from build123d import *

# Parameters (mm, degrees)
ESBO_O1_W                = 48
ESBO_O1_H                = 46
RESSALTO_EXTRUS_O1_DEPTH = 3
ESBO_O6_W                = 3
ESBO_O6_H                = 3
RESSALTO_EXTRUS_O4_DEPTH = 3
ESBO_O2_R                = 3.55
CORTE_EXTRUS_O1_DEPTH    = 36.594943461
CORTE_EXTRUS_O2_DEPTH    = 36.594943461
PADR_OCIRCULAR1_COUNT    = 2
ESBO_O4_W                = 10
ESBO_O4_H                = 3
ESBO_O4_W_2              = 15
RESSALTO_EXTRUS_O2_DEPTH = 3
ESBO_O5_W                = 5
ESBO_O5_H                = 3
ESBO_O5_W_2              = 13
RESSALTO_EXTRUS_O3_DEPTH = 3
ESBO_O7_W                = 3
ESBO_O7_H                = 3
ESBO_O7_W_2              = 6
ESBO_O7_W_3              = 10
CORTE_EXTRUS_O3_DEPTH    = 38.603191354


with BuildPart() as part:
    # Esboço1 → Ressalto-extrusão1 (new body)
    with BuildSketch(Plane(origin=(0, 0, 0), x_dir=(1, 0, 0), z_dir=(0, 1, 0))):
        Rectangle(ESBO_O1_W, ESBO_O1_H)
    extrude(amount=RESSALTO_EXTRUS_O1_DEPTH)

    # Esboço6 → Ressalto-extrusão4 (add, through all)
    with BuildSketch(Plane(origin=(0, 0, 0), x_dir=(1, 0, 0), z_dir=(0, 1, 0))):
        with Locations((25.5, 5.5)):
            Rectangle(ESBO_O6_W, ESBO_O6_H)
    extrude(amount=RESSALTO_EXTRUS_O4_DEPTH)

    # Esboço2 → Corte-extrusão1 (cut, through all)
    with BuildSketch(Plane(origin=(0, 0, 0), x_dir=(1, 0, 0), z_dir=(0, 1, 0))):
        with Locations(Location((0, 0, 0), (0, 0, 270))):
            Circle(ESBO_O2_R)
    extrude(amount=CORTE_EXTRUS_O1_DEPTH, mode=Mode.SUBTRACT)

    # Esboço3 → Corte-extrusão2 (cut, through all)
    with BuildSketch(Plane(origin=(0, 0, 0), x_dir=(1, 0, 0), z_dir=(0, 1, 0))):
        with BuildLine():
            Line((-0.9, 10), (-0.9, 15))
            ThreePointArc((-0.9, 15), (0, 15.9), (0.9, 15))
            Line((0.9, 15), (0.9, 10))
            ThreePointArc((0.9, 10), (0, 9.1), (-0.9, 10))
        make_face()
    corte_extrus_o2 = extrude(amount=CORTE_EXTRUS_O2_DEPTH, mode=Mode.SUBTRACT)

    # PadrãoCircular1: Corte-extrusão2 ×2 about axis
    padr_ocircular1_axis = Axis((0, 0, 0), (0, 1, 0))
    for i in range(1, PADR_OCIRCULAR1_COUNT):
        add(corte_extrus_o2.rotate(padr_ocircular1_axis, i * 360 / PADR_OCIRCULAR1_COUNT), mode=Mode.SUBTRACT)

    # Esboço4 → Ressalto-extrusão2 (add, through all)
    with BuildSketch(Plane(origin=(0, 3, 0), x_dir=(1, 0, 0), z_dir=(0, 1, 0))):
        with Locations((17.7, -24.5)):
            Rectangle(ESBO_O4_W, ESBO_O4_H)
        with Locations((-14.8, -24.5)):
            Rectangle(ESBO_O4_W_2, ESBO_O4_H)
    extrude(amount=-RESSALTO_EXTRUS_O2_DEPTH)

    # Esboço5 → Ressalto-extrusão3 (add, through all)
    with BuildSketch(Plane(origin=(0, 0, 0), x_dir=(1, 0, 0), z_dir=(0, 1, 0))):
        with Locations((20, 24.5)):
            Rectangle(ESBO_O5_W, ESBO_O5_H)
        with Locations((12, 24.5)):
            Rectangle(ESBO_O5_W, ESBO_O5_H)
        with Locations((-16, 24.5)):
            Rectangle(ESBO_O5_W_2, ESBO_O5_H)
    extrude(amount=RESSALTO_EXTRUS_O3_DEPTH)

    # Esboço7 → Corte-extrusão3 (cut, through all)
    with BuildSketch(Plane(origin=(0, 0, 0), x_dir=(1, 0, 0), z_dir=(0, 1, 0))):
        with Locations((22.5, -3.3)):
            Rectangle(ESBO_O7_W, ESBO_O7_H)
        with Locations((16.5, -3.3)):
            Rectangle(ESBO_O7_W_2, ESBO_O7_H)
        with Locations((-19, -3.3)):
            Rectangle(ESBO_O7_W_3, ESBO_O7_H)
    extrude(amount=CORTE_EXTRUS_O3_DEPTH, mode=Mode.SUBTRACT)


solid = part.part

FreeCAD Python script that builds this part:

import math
import FreeCAD as App
import Part
import Sketcher

V = App.Vector


def add_polygon(sketch, points):
    """Adds a closed chain of lines whose ends are joined by coincident constraints."""
    first, n = sketch.GeometryCount, len(points)
    for a, b in zip(points, points[1:] + points[:1]):
        sketch.addGeometry(Part.LineSegment(App.Vector(*a, 0), App.Vector(*b, 0)), False)
    for i in range(n):
        sketch.addConstraint(Sketcher.Constraint("Coincident", first + i, 2, first + (i + 1) % n, 1))

doc = App.newDocument("Part")
body = doc.addObject("PartDesign::Body", "Body")

sketch1 = body.newObject("Sketcher::SketchObject", "Sketch")
sketch1.AttachmentSupport = (doc.getObject("XZ_Plane"), [""])
sketch1.MapMode = "FlatFace"
add_polygon(sketch1, [(-24, -23), (-24, 23), (24, 23), (24, -23)])
sketch1.addConstraint(Sketcher.Constraint("Vertical", 0))
sketch1.addConstraint(Sketcher.Constraint("Horizontal", 1))
sketch1.addConstraint(Sketcher.Constraint("Vertical", 2))
sketch1.addConstraint(Sketcher.Constraint("Horizontal", 3))
sketch1.addConstraint(Sketcher.Constraint("Symmetric", 0, 2, 2, 2, -1, 1))
sketch1.addConstraint(Sketcher.Constraint("DistanceX", 1, 1, 1, 2, 48.0))
sketch1.addConstraint(Sketcher.Constraint("DistanceY", 0, 1, 0, 2, 46.0))
pad1 = body.newObject("PartDesign::Pad", "Pad")
pad1.Profile = sketch1
pad1.Length = 3
pad1.Reversed = True

sketch2 = body.newObject("Sketcher::SketchObject", "Sketch001")
sketch2.AttachmentSupport = (doc.getObject("XZ_Plane"), [""])
sketch2.MapMode = "FlatFace"
add_polygon(sketch2, [(24, -7), (24, -4), (27, -4), (27, -7)])
sketch2.addConstraint(Sketcher.Constraint("Vertical", 0))
sketch2.addConstraint(Sketcher.Constraint("Horizontal", 1))
sketch2.addConstraint(Sketcher.Constraint("Vertical", 2))
sketch2.addConstraint(Sketcher.Constraint("Horizontal", 3))
sketch2.addConstraint(Sketcher.Constraint("Equal", 3, 0))
sketch2.addConstraint(Sketcher.Constraint("DistanceX", 1, 1, 1, 2, 3.0))
sketch2.addConstraint(Sketcher.Constraint("DistanceX", -1, 1, 0, 2, 24.0))
sketch2.addConstraint(Sketcher.Constraint("DistanceY", 0, 2, -1, 1, 4.0))
pad2 = body.newObject("PartDesign::Pad", "Pad001")
pad2.Profile = sketch2
pad2.Length = 3
pad2.Reversed = True

sketch3 = body.newObject("Sketcher::SketchObject", "Sketch002")
sketch3.AttachmentSupport = (doc.getObject("XZ_Plane"), [""])
sketch3.MapMode = "FlatFace"
sketch3.addGeometry(Part.Circle(V(0, 0, 0), V(0, 0, 1), 3.55), False)
sketch3.addConstraint(Sketcher.Constraint("Coincident", 0, 3, -1, 1))
sketch3.addConstraint(Sketcher.Constraint("Diameter", 0, 7.1))
pocket1 = body.newObject("PartDesign::Pocket", "Pocket")
pocket1.Profile = sketch3
pocket1.Type = "ThroughAll"

sketch4 = body.newObject("Sketcher::SketchObject", "Sketch003")
sketch4.AttachmentSupport = (doc.getObject("XZ_Plane"), [""])
sketch4.MapMode = "FlatFace"
sketch4.addGeometry(Part.LineSegment(V(-0.9, -15, 0), V(-0.9, -10, 0)), False)
sketch4.addGeometry(Part.ArcOfCircle(Part.Circle(V(0, -10, 0), V(0, 0, 1), 0.9), math.radians(0), math.radians(180)), False)
sketch4.addGeometry(Part.LineSegment(V(0.9, -10, 0), V(0.9, -15, 0)), False)
sketch4.addGeometry(Part.ArcOfCircle(Part.Circle(V(0, -15, 0), V(0, 0, 1), 0.9), math.radians(180), math.radians(360)), False)
sketch4.addConstraint(Sketcher.Constraint("Tangent", 0, 2, 1, 2))
sketch4.addConstraint(Sketcher.Constraint("Tangent", 1, 1, 2, 1))
sketch4.addConstraint(Sketcher.Constraint("Tangent", 2, 2, 3, 2))
sketch4.addConstraint(Sketcher.Constraint("Tangent", 3, 1, 0, 1))
sketch4.addConstraint(Sketcher.Constraint("Vertical", 0))
sketch4.addConstraint(Sketcher.Constraint("Vertical", 2))
sketch4.addConstraint(Sketcher.Constraint("PointOnObject", 1, 3, -2))
sketch4.addConstraint(Sketcher.Constraint("Radius", 1, 0.9))
sketch4.addConstraint(Sketcher.Constraint("DistanceY", 0, 1, 0, 2, 5.0))
sketch4.addConstraint(Sketcher.Constraint("DistanceY", 1, 3, -1, 1, 10.0))
pocket2 = body.newObject("PartDesign::Pocket", "Pocket001")
pocket2.Profile = sketch4
pocket2.Type = "ThroughAll"
doc.recompute()

polarpattern = body.newObject("PartDesign::PolarPattern", "PolarPattern")
polarpattern.Originals = [pocket2]
polarpattern.Axis = (doc.getObject("Y_Axis"), [""])
polarpattern.Angle = 360
polarpattern.Occurrences = 2
body.Tip = polarpattern

sketch5 = body.newObject("Sketcher::SketchObject", "Sketch004")
sketch5.AttachmentSupport = (doc.getObject("XZ_Plane"), [""])
sketch5.MapMode = "FlatFace"
sketch5.AttachmentOffset = App.Placement(V(0, 0, -3), App.Rotation())
add_polygon(sketch5, [(12.7, 23), (12.7, 26), (22.7, 26), (22.7, 23)])
add_polygon(sketch5, [(-22.3, 23), (-22.3, 26), (-7.3, 26), (-7.3, 23)])
sketch5.addConstraint(Sketcher.Constraint("Vertical", 0))
sketch5.addConstraint(Sketcher.Constraint("Horizontal", 1))
sketch5.addConstraint(Sketcher.Constraint("Vertical", 2))
sketch5.addConstraint(Sketcher.Constraint("Horizontal", 3))
sketch5.addConstraint(Sketcher.Constraint("Vertical", 4))
sketch5.addConstraint(Sketcher.Constraint("Horizontal", 5))
sketch5.addConstraint(Sketcher.Constraint("Vertical", 6))
sketch5.addConstraint(Sketcher.Constraint("Horizontal", 7))
sketch5.addConstraint(Sketcher.Constraint("Horizontal", 1, 2, 4, 2))
sketch5.addConstraint(Sketcher.Constraint("Horizontal", 3, 2, 6, 2))
sketch5.addConstraint(Sketcher.Constraint("DistanceX", 1, 1, 1, 2, 10.0))
sketch5.addConstraint(Sketcher.Constraint("DistanceX", 5, 1, 5, 2, 15.0))
sketch5.addConstraint(Sketcher.Constraint("DistanceY", 0, 1, 0, 2, 3.0))
sketch5.addConstraint(Sketcher.Constraint("DistanceY", -1, 1, 0, 2, 26.0))
sketch5.addConstraint(Sketcher.Constraint("DistanceX", 4, 2, 0, 2, 35.0))
sketch5.addConstraint(Sketcher.Constraint("DistanceX", -1, 1, 0, 2, 12.7))
pad3 = body.newObject("PartDesign::Pad", "Pad002")
pad3.Profile = sketch5
pad3.Length = 3

sketch6 = body.newObject("Sketcher::SketchObject", "Sketch005")
sketch6.AttachmentSupport = (doc.getObject("XZ_Plane"), [""])
sketch6.MapMode = "FlatFace"
add_polygon(sketch6, [(17.5, -26), (17.5, -23), (22.5, -23), (22.5, -26)])
add_polygon(sketch6, [(9.5, -26), (9.5, -23), (14.5, -23), (14.5, -26)])
add_polygon(sketch6, [(-22.5, -26), (-22.5, -23), (-9.5, -23), (-9.5, -26)])
sketch6.addConstraint(Sketcher.Constraint("Vertical", 0))
sketch6.addConstraint(Sketcher.Constraint("Horizontal", 1))
sketch6.addConstraint(Sketcher.Constraint("Vertical", 2))
sketch6.addConstraint(Sketcher.Constraint("Horizontal", 3))
sketch6.addConstraint(Sketcher.Constraint("Vertical", 4))
sketch6.addConstraint(Sketcher.Constraint("Horizontal", 5))
sketch6.addConstraint(Sketcher.Constraint("Vertical", 6))
sketch6.addConstraint(Sketcher.Constraint("Horizontal", 7))
sketch6.addConstraint(Sketcher.Constraint("Vertical", 8))
sketch6.addConstraint(Sketcher.Constraint("Horizontal", 9))
sketch6.addConstraint(Sketcher.Constraint("Vertical", 10))
sketch6.addConstraint(Sketcher.Constraint("Horizontal", 11))
sketch6.addConstraint(Sketcher.Constraint("Symmetric", 1, 2, 8, 2, -2))
sketch6.addConstraint(Sketcher.Constraint("Symmetric", 4, 2, 9, 2, -2))
sketch6.addConstraint(Sketcher.Constraint("Horizontal", 3, 2, 6, 2))
sketch6.addConstraint(Sketcher.Constraint("Horizontal", 7, 2, 10, 2))
sketch6.addConstraint(Sketcher.Constraint("Equal", 3, 5))
sketch6.addConstraint(Sketcher.Constraint("DistanceX", 1, 1, 1, 2, 5.0))
sketch6.addConstraint(Sketcher.Constraint("DistanceX", 9, 1, 9, 2, 13.0))
sketch6.addConstraint(Sketcher.Constraint("DistanceY", 0, 1, 0, 2, 3.0))
sketch6.addConstraint(Sketcher.Constraint("DistanceY", 0, 2, -1, 1, 23.0))
sketch6.addConstraint(Sketcher.Constraint("DistanceX", 8, 2, 4, 2, 32.0))
pad4 = body.newObject("PartDesign::Pad", "Pad003")
pad4.Profile = sketch6
pad4.Length = 3
pad4.Reversed = True

sketch7 = body.newObject("Sketcher::SketchObject", "Sketch006")
sketch7.AttachmentSupport = (doc.getObject("XZ_Plane"), [""])
sketch7.MapMode = "FlatFace"
add_polygon(sketch7, [(21, 1.8), (21, 4.8), (24, 4.8), (24, 1.8)])
add_polygon(sketch7, [(13.5, 1.8), (13.5, 4.8), (19.5, 4.8), (19.5, 1.8)])
add_polygon(sketch7, [(-24, 1.8), (-24, 4.8), (-14, 4.8), (-14, 1.8)])
sketch7.addConstraint(Sketcher.Constraint("Vertical", 0))
sketch7.addConstraint(Sketcher.Constraint("Horizontal", 1))
sketch7.addConstraint(Sketcher.Constraint("Vertical", 2))
sketch7.addConstraint(Sketcher.Constraint("Horizontal", 3))
sketch7.addConstraint(Sketcher.Constraint("Vertical", 4))
sketch7.addConstraint(Sketcher.Constraint("Horizontal", 5))
sketch7.addConstraint(Sketcher.Constraint("Vertical", 6))
sketch7.addConstraint(Sketcher.Constraint("Horizontal", 7))
sketch7.addConstraint(Sketcher.Constraint("Vertical", 8))
sketch7.addConstraint(Sketcher.Constraint("Horizontal", 9))
sketch7.addConstraint(Sketcher.Constraint("Vertical", 10))
sketch7.addConstraint(Sketcher.Constraint("Horizontal", 11))
sketch7.addConstraint(Sketcher.Constraint("Symmetric", 1, 2, 8, 2, -2))
sketch7.addConstraint(Sketcher.Constraint("Horizontal", 1, 2, 4, 2))
sketch7.addConstraint(Sketcher.Constraint("Horizontal", 3, 2, 6, 2))
sketch7.addConstraint(Sketcher.Constraint("Horizontal", 7, 2, 10, 2))
sketch7.addConstraint(Sketcher.Constraint("Equal", 3, 0))
sketch7.addConstraint(Sketcher.Constraint("DistanceX", 1, 1, 1, 2, 3.0))
sketch7.addConstraint(Sketcher.Constraint("DistanceX", 5, 1, 5, 2, 6.0))
sketch7.addConstraint(Sketcher.Constraint("DistanceX", 9, 1, 9, 2, 10.0))
sketch7.addConstraint(Sketcher.Constraint("DistanceX", -1, 1, 0, 2, 21.0))
sketch7.addConstraint(Sketcher.Constraint("DistanceY", -1, 1, 0, 2, 4.8))
sketch7.addConstraint(Sketcher.Constraint("DistanceX", -1, 1, 4, 2, 13.5))
pocket3 = body.newObject("PartDesign::Pocket", "Pocket002")
pocket3.Profile = sketch7
pocket3.Type = "ThroughAll"

doc.recompute()
